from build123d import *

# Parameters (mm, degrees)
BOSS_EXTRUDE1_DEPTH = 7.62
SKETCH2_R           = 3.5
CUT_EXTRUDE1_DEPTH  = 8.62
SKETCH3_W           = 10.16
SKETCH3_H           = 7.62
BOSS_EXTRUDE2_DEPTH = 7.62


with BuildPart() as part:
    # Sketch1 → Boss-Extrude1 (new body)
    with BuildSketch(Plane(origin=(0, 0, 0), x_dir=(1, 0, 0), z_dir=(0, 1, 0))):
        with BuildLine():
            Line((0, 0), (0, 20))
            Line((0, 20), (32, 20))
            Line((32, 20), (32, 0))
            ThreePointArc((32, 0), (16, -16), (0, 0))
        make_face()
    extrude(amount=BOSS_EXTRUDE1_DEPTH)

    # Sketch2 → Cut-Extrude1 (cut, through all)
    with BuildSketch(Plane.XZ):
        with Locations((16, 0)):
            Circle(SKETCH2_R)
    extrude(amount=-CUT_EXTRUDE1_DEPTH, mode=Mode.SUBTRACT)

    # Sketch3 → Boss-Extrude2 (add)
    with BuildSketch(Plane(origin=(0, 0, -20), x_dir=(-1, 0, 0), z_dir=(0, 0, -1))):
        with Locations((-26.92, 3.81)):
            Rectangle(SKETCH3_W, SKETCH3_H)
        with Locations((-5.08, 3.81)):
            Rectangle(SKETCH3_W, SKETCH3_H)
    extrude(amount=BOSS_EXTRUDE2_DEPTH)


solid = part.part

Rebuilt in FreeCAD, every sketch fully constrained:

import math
import FreeCAD as App
import Part
import Sketcher
from FreeCAD import Vector

doc = App.newDocument("Part")
body = doc.addObject("PartDesign::Body", "Body")

sketch1 = body.newObject("Sketcher::SketchObject", "Sketch")
sketch1.AttachmentSupport = (doc.getObject("XZ_Plane"), [""])
sketch1.MapMode = "FlatFace"
sketch1.addGeometry(Part.LineSegment(Vector(0, -20, 0), Vector(0, 0, 0)), False)
sketch1.addGeometry(Part.ArcOfCircle(Part.Circle(Vector(16, 0, 0), Vector(0, 0, 1), 16), math.radians(0), math.radians(180)), False)
sketch1.addGeometry(Part.LineSegment(Vector(32, 0, 0), Vector(32, -20, 0)), False)
sketch1.addGeometry(Part.LineSegment(Vector(32, -20, 0), Vector(0, -20, 0)), False)
sketch1.addConstraint(Sketcher.Constraint("Tangent", 0, 2, 1, 2))
sketch1.addConstraint(Sketcher.Constraint("Tangent", 1, 1, 2, 1))
sketch1.addConstraint(Sketcher.Constraint("Coincident", 2, 2, 3, 1))
sketch1.addConstraint(Sketcher.Constraint("Coincident", 3, 2, 0, 1))
sketch1.addConstraint(Sketcher.Constraint("Vertical", 0))
sketch1.addConstraint(Sketcher.Constraint("Vertical", 2))
sketch1.addConstraint(Sketcher.Constraint("Horizontal", 3))
sketch1.addConstraint(Sketcher.Constraint("Coincident", 0, 2, -1, 1))
sketch1.addConstraint(Sketcher.Constraint("Radius", 1, 16.0))
sketch1.addConstraint(Sketcher.Constraint("DistanceY", 0, 1, 0, 2, 20.0))
pad1 = body.newObject("PartDesign::Pad", "Pad")
pad1.Profile = sketch1
pad1.Length = 7.62
pad1.Reversed = True

sketch2 = body.newObject("Sketcher::SketchObject", "Sketch001")
sketch2.AttachmentSupport = (doc.getObject("XZ_Plane"), [""])
sketch2.MapMode = "FlatFace"
sketch2.addGeometry(Part.Circle(Vector(16, 0, 0), Vector(0, 0, 1), 3.5), False)
sketch2.addConstraint(Sketcher.Constraint("PointOnObject", 0, 3, -1))
sketch2.addConstraint(Sketcher.Constraint("Diameter", 0, 7.0))
sketch2.addConstraint(Sketcher.Constraint("DistanceX", -1, 1, 0, 3, 16.0))
pocket1 = body.newObject("PartDesign::Pocket", "Pocket")
pocket1.Profile = sketch2
pocket1.Type = "ThroughAll"

sketch3 = body.newObject("Sketcher::SketchObject", "Sketch002")
sketch3.AttachmentSupport = (doc.getObject("XY_Plane"), [""])
sketch3.MapMode = "FlatFace"
sketch3.AttachmentOffset = App.Placement(Vector(0, 0, -20), App.Rotation())
sketch3.addGeometry(Part.LineSegment(Vector(32, 8, 0), Vector(32, 0, 0)), False)
sketch3.addGeometry(Part.LineSegment(Vector(32, 0, 0), Vector(22, 0, 0)), False)
sketch3.addGeometry(Part.LineSegment(Vector(22, 0, 0), Vector(22, 8, 0)), False)
sketch3.addGeometry(Part.LineSegment(Vector(22, 8, 0), Vector(32, 8, 0)), False)
sketch3.addGeometry(Part.LineSegment(Vector(10, 8, 0), Vector(10, 0, 0)), False)
sketch3.addGeometry(Part.LineSegment(Vector(10, 0, 0), Vector(0, 0, 0)), False)
sketch3.addGeometry(Part.LineSegment(Vector(0, 0, 0), Vector(0, 8, 0)), False)
sketch3.addGeometry(Part.LineSegment(Vector(0, 8, 0), Vector(10, 8, 0)), False)
sketch3.addConstraint(Sketcher.Constraint("Coincident", 0, 2, 1, 1))
sketch3.addConstraint(Sketcher.Constraint("Coincident", 1, 2, 2, 1))
sketch3.addConstraint(Sketcher.Constraint("Coincident", 2, 2, 3, 1))
sketch3.addConstraint(Sketcher.Constraint("Coincident", 3, 2, 0, 1))
sketch3.addConstraint(Sketcher.Constraint("Coincident", 4, 2, 5, 1))
sketch3.addConstraint(Sketcher.Constraint("Coincident", 5, 2, 6, 1))
sketch3.addConstraint(Sketcher.Constraint("Coincident", 6, 2, 7, 1))
sketch3.addConstraint(Sketcher.Constraint("Coincident", 7, 2, 4, 1))
sketch3.addConstraint(Sketcher.Constraint("Vertical", 0))
sketch3.addConstraint(Sketcher.Constraint("Horizontal", 1))
sketch3.addConstraint(Sketcher.Constraint("Vertical", 2))
sketch3.addConstraint(Sketcher.Constraint("Horizontal", 3))
sketch3.addConstraint(Sketcher.Constraint("Vertical", 4))
sketch3.addConstraint(Sketcher.Constraint("Horizontal", 5))
sketch3.addConstraint(Sketcher.Constraint("Vertical", 6))
sketch3.addConstraint(Sketcher.Constraint("Horizontal", 7))
sketch3.addConstraint(Sketcher.Constraint("Coincident", 5, 2, -1, 1))
sketch3.addConstraint(Sketcher.Constraint("PointOnObject", 0, 2, -1))
sketch3.addConstraint(Sketcher.Constraint("Horizontal", 3, 2, 6, 2))
sketch3.addConstraint(Sketcher.Constraint("Equal", 3, 5))
sketch3.addConstraint(Sketcher.Constraint("DistanceX", -1, 1, 0, 2, 32.0))
sketch3.addConstraint(Sketcher.Constraint("DistanceX", 1, 2, 1, 1, 10.16))
sketch3.addConstraint(Sketcher.Constraint("DistanceY", 0, 2, 0, 1, 7.62))
pad2 = body.newObject("PartDesign::Pad", "Pad001")
pad2.Profile = sketch3
pad2.Length = 7.62
pad2.Reversed = True

doc.recompute()
